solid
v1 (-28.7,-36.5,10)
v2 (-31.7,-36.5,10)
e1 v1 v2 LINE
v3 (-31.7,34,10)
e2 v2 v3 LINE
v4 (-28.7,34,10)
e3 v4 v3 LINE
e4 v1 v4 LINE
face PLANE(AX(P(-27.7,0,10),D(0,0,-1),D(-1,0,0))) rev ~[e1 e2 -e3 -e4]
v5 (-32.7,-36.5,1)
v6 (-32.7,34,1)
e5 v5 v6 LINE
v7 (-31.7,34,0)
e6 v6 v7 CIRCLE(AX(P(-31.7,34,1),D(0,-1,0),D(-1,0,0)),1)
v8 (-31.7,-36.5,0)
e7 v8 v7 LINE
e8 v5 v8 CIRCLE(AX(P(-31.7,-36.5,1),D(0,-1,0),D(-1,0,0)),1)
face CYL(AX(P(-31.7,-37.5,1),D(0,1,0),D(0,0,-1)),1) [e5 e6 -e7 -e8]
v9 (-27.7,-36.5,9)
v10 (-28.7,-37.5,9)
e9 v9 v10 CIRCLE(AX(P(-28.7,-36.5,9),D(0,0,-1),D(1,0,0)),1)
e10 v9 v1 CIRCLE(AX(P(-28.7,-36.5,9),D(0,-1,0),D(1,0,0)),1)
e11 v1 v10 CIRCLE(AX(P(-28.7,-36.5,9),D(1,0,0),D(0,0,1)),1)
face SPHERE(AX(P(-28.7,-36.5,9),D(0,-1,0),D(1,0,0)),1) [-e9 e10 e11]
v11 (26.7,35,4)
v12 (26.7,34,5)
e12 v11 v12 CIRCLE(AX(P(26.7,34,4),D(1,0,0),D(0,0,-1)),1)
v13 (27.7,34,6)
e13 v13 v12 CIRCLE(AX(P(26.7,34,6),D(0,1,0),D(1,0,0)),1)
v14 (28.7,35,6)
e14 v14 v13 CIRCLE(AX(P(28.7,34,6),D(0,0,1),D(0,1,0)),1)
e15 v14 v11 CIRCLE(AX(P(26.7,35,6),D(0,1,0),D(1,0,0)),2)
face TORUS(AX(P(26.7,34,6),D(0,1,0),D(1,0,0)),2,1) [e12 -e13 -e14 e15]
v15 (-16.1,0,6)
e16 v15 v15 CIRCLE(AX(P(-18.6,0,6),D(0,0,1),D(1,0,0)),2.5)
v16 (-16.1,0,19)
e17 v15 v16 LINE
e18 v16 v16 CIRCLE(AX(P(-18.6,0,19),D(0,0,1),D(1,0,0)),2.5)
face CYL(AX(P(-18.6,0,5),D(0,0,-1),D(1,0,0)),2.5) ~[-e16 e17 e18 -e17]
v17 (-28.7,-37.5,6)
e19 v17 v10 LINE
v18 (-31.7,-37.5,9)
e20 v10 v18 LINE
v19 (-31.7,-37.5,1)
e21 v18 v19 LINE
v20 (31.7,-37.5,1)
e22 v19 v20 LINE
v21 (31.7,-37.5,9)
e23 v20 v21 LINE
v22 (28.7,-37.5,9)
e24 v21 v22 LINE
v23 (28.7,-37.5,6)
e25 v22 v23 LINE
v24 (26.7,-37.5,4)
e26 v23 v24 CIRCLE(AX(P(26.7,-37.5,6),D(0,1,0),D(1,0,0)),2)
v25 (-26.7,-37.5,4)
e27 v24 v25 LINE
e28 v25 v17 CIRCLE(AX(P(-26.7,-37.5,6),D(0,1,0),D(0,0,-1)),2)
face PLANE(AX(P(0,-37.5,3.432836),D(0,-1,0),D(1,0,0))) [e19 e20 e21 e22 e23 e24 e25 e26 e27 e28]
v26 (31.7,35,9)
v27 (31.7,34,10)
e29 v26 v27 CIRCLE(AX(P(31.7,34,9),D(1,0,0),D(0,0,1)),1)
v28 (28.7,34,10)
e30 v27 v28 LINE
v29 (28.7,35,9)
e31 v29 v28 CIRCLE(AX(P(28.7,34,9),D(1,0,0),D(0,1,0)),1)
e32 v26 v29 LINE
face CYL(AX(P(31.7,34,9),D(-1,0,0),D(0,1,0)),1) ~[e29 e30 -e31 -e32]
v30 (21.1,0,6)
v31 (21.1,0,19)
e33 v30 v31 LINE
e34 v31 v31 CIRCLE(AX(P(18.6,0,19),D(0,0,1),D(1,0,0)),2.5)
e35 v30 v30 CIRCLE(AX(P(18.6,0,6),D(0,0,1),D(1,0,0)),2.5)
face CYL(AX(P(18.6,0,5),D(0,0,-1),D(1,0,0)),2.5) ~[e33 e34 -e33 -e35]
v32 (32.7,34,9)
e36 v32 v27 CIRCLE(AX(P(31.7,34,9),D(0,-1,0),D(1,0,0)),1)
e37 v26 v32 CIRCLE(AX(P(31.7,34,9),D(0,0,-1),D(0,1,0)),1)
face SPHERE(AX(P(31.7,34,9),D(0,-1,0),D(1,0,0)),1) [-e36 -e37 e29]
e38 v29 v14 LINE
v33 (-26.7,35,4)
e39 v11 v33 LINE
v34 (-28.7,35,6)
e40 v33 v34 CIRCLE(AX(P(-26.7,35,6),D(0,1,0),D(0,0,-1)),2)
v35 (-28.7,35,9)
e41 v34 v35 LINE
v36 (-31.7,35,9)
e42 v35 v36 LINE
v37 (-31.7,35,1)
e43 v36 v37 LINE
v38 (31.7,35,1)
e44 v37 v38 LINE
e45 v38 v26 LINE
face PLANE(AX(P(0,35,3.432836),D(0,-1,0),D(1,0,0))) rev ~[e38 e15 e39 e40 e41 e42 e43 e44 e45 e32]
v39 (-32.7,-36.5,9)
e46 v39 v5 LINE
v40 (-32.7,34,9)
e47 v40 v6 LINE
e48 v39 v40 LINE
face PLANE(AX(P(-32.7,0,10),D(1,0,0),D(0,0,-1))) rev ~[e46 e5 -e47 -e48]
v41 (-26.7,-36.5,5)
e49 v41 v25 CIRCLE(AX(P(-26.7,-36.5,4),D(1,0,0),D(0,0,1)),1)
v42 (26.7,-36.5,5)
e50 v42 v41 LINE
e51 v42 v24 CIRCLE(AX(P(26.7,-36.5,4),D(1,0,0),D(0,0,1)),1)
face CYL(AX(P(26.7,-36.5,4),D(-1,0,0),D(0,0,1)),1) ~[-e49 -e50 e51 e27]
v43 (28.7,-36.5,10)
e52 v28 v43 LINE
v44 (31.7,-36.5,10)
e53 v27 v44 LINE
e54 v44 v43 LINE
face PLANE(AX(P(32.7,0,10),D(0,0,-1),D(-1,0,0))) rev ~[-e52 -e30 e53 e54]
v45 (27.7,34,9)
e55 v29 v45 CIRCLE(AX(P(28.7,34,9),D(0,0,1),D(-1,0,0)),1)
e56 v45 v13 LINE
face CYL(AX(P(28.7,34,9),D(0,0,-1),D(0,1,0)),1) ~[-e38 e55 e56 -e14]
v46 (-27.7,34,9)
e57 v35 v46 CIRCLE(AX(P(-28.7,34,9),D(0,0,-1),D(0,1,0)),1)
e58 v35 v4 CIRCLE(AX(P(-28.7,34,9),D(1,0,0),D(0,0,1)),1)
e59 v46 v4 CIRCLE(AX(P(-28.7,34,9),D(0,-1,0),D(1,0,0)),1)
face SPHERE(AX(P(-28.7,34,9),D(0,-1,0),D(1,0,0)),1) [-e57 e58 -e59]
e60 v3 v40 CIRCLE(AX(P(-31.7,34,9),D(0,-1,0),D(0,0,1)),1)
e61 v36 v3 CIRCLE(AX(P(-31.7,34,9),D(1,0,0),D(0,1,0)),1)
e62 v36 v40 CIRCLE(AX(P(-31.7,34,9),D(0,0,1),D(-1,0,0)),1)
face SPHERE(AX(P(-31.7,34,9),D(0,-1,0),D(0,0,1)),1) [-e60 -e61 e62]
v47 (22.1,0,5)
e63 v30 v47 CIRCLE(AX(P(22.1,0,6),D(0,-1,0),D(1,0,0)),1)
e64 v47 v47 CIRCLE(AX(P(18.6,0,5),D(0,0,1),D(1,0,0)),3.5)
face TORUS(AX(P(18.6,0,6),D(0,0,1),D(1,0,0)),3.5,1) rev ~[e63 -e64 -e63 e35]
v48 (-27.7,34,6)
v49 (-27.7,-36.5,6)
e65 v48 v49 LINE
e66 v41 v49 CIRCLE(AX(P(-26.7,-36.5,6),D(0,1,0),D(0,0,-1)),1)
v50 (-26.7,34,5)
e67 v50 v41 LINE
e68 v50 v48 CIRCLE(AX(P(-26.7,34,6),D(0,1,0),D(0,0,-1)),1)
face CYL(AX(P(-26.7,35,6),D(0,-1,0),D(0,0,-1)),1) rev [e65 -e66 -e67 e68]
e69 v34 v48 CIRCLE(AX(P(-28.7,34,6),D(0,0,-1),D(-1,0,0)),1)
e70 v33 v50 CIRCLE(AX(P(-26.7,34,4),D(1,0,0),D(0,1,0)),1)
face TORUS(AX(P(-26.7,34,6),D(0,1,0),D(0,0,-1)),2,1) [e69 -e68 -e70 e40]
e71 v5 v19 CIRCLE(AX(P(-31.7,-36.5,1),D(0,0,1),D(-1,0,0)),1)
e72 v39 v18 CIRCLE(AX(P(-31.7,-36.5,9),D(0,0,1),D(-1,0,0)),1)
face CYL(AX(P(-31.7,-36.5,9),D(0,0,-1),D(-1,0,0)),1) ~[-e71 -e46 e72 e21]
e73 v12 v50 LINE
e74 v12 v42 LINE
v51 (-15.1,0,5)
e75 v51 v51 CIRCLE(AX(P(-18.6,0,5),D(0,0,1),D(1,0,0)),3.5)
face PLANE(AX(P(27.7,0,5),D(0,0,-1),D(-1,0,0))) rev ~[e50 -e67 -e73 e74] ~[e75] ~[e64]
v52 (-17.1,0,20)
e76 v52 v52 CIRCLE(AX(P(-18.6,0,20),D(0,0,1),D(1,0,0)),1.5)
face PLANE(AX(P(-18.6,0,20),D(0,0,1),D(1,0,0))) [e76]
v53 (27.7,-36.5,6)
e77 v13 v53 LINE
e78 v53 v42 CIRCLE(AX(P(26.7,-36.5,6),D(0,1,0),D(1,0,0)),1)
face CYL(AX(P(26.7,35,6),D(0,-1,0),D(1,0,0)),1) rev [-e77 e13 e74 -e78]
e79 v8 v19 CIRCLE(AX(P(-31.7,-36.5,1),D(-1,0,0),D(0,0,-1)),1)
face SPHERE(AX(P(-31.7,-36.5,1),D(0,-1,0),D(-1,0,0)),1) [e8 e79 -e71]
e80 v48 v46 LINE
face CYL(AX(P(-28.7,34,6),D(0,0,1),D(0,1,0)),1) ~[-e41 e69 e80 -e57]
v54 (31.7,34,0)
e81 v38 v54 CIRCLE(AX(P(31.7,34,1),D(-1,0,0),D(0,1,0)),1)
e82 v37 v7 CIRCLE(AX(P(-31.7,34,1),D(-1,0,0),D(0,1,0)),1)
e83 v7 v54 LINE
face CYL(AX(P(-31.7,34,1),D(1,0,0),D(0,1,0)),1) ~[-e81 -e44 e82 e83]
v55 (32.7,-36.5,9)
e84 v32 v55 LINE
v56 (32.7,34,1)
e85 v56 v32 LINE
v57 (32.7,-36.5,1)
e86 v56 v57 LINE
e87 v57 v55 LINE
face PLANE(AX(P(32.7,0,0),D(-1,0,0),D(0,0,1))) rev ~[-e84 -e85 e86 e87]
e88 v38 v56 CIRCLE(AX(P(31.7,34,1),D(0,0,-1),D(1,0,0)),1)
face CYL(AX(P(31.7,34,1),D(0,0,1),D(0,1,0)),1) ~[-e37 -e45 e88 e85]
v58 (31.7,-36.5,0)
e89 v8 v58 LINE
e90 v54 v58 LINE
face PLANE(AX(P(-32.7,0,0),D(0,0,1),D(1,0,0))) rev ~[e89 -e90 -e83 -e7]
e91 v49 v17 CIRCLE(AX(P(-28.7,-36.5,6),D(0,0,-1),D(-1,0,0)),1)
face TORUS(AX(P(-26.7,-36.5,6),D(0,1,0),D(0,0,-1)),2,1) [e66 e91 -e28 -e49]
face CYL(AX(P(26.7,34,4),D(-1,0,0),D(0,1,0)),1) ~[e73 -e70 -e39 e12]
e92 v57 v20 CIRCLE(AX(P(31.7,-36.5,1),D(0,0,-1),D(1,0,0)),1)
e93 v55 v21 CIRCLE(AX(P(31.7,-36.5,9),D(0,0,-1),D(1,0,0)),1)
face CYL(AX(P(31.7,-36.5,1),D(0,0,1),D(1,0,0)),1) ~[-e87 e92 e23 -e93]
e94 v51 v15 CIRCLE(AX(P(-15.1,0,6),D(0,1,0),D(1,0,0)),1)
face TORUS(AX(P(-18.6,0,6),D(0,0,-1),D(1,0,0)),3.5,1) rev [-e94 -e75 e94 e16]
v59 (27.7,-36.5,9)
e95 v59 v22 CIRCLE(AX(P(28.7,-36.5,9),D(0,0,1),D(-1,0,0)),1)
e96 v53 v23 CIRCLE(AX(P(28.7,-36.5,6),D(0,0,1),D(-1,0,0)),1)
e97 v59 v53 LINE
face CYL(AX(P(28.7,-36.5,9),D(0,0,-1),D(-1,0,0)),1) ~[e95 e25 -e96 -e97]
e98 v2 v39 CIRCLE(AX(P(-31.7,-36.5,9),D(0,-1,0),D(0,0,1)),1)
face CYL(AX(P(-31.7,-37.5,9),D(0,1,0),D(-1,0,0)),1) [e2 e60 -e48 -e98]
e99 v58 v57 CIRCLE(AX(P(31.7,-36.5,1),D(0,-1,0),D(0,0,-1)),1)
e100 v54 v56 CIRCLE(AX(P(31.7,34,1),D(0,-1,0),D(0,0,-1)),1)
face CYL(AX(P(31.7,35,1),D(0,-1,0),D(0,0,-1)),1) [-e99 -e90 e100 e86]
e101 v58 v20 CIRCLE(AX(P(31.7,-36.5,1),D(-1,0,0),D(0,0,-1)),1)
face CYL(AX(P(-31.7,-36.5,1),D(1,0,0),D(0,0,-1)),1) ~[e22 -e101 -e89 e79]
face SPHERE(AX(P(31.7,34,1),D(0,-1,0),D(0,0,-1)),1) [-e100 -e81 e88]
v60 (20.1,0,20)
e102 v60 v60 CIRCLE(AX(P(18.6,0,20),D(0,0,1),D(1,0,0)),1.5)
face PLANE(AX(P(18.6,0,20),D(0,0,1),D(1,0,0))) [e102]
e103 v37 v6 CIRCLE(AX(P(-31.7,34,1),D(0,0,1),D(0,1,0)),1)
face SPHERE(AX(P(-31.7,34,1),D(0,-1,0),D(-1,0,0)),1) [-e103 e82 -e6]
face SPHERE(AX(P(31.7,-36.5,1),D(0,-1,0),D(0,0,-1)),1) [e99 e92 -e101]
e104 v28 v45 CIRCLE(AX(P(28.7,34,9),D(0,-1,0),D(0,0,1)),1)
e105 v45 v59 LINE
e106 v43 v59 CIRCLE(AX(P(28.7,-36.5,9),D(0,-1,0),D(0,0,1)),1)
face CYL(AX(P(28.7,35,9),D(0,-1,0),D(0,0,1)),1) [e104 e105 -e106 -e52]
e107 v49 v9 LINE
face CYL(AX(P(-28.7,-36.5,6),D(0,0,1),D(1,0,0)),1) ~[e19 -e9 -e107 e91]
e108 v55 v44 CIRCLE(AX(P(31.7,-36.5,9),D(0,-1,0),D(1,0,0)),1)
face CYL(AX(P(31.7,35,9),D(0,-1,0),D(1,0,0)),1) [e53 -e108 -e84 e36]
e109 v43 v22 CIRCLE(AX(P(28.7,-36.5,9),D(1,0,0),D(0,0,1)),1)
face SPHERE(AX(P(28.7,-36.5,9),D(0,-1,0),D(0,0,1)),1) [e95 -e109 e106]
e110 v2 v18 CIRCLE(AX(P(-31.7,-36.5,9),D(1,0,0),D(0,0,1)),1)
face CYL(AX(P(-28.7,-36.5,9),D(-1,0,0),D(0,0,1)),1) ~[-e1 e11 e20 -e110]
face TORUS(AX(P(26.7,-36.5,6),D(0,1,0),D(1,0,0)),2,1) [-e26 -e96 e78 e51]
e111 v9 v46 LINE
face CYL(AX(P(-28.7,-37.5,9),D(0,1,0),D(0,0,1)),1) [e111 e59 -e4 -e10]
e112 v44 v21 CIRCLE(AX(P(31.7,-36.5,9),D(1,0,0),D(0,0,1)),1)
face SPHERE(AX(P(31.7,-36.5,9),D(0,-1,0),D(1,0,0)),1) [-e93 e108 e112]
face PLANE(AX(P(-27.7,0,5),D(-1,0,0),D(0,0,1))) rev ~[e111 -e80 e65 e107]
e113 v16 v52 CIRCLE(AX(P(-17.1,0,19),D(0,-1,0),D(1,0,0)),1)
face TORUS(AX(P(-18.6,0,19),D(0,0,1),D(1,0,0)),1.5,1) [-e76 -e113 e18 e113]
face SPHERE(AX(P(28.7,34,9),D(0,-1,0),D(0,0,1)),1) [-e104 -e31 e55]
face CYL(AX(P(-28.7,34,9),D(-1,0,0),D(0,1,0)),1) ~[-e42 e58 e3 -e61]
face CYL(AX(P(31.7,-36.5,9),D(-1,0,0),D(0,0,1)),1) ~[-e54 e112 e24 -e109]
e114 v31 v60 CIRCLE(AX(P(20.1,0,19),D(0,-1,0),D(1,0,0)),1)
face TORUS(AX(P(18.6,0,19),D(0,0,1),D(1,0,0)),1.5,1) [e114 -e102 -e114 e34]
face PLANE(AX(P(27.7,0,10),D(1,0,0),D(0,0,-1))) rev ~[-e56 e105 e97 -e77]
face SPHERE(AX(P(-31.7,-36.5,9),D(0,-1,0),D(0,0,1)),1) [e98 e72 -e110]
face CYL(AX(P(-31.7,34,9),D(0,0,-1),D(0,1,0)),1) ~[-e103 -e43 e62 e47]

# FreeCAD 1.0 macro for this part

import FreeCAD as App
import Part
import Sketcher

V = App.Vector


def edges_at(feature, points):
    """Names of the edges that pass closest to the given points."""
    edges = feature.Shape.Edges
    near = lambda p: min(range(len(edges)), key=lambda i: edges[i].distToShape(Part.Vertex(*p))[0])
    return sorted({f"Edge{near(p) + 1}" for p in points})

doc = App.newDocument("Part")
body = doc.addObject("PartDesign::Body", "Body")

sketch1 = body.newObject("Sketcher::SketchObject", "Sketch")
sketch1.AttachmentSupport = (doc.getObject("XZ_Plane"), [""])
sketch1.MapMode = "FlatFace"
sketch1.addGeometry([
    Part.LineSegment(V(-33, 0, 0), V(33, 0, 0)),
    Part.LineSegment(V(33, 0, 0), V(33, 10, 0)),
    Part.LineSegment(V(33, 10, 0), V(28, 10, 0)),
    Part.LineSegment(V(28, 10, 0), V(28, 5, 0)),
    Part.LineSegment(V(28, 5, 0), V(-28, 5, 0)),
    Part.LineSegment(V(-28, 5, 0), V(-28, 10, 0)),
    Part.LineSegment(V(-28, 10, 0), V(-33, 10, 0)),
    Part.LineSegment(V(-33, 10, 0), V(-33, 0, 0)),
], False)
sketch1.addConstraint([
    Sketcher.Constraint("Coincident", 0, 2, 1, 1),
    Sketcher.Constraint("Coincident", 1, 2, 2, 1),
    Sketcher.Constraint("Coincident", 2, 2, 3, 1),
    Sketcher.Constraint("Coincident", 3, 2, 4, 1),
    Sketcher.Constraint("Coincident", 4, 2, 5, 1),
    Sketcher.Constraint("Coincident", 5, 2, 6, 1),
    Sketcher.Constraint("Coincident", 6, 2, 7, 1),
    Sketcher.Constraint("Coincident", 7, 2, 0, 1),
    Sketcher.Constraint("Horizontal", 0),
    Sketcher.Constraint("Vertical", 1),
    Sketcher.Constraint("Horizontal", 2),
    Sketcher.Constraint("Vertical", 3),
    Sketcher.Constraint("Horizontal", 4),
    Sketcher.Constraint("Vertical", 5),
    Sketcher.Constraint("Horizontal", 6),
    Sketcher.Constraint("Vertical", 7),
    Sketcher.Constraint("Symmetric", 0, 2, 7, 2, -1, 1),
    Sketcher.Constraint("Symmetric", 2, 2, 5, 2, -2),
    Sketcher.Constraint("Equal", 6, 3),
    Sketcher.Constraint("DistanceX", 2, 2, 2, 1, 5.0),
    Sketcher.Constraint("DistanceY", 1, 1, 1, 2, 10.0),
    Sketcher.Constraint("DistanceX", 0, 1, 0, 2, 65.4),
])
pad1 = body.newObject("PartDesign::Pad", "Pad")
pad1.Profile = sketch1
pad1.Type = "TwoLengths"
pad1.Length = 35
pad1.Length2 = 37.5
pad1.Reversed = True

sketch2 = body.newObject("Sketcher::SketchObject", "Sketch001")
sketch2.AttachmentSupport = (doc.getObject("XY_Plane"), [""])
sketch2.MapMode = "FlatFace"
sketch2.AttachmentOffset = App.Placement(V(0, 0, 5), App.Rotation())
sketch2.addGeometry([
    Part.Circle(V(-18.6, 0, 0), V(0, 0, 1), 2.5),
    Part.Circle(V(18.6, 0, 0), V(0, 0, 1), 2.5),
], False)
sketch2.addConstraint([
    Sketcher.Constraint("Equal", 0, 1),
    Sketcher.Constraint("Symmetric", 0, 3, 1, 3, -1, 1),
    Sketcher.Constraint("PointOnObject", 0, 3, -1),
    Sketcher.Constraint("Diameter", 0, 5.0),
    Sketcher.Constraint("DistanceX", 0, 3, -1, 1, 18.6),
])
pad2 = body.newObject("PartDesign::Pad", "Pad001")
pad2.Profile = sketch2
pad2.Length = 15
doc.recompute()

fillet = body.newObject("PartDesign::Fillet", "Fillet")
fillet.Base = (pad2, edges_at(pad2, [
    (-27.7, -1.25, 5),
    (27.7, -1.25, 5),
    (-27.7, -1.25, 10),
    (-32.7, -1.25, 10),
    (27.7, -1.25, 10),
    (32.7, -1.25, 10),
    (32.7, -1.25, 0),
    (-32.7, -1.25, 0),
]))
fillet.Radius = 1
doc.recompute()

fillet2 = body.newObject("PartDesign::Fillet", "Fillet001")
fillet2.Base = (fillet, edges_at(fillet, [(-21.1, 0, 20), (16.1, 0, 20)]))
fillet2.Radius = 1
doc.recompute()

fillet3 = body.newObject("PartDesign::Fillet", "Fillet002")
fillet3.Base = (fillet2, edges_at(fillet2, [
    (0, -37.5, 5),
    (0, 35, 0),
    (-21.1, 0, 5),
    (16.1, 0, 5),
]))
fillet3.Radius = 1

doc.recompute()
